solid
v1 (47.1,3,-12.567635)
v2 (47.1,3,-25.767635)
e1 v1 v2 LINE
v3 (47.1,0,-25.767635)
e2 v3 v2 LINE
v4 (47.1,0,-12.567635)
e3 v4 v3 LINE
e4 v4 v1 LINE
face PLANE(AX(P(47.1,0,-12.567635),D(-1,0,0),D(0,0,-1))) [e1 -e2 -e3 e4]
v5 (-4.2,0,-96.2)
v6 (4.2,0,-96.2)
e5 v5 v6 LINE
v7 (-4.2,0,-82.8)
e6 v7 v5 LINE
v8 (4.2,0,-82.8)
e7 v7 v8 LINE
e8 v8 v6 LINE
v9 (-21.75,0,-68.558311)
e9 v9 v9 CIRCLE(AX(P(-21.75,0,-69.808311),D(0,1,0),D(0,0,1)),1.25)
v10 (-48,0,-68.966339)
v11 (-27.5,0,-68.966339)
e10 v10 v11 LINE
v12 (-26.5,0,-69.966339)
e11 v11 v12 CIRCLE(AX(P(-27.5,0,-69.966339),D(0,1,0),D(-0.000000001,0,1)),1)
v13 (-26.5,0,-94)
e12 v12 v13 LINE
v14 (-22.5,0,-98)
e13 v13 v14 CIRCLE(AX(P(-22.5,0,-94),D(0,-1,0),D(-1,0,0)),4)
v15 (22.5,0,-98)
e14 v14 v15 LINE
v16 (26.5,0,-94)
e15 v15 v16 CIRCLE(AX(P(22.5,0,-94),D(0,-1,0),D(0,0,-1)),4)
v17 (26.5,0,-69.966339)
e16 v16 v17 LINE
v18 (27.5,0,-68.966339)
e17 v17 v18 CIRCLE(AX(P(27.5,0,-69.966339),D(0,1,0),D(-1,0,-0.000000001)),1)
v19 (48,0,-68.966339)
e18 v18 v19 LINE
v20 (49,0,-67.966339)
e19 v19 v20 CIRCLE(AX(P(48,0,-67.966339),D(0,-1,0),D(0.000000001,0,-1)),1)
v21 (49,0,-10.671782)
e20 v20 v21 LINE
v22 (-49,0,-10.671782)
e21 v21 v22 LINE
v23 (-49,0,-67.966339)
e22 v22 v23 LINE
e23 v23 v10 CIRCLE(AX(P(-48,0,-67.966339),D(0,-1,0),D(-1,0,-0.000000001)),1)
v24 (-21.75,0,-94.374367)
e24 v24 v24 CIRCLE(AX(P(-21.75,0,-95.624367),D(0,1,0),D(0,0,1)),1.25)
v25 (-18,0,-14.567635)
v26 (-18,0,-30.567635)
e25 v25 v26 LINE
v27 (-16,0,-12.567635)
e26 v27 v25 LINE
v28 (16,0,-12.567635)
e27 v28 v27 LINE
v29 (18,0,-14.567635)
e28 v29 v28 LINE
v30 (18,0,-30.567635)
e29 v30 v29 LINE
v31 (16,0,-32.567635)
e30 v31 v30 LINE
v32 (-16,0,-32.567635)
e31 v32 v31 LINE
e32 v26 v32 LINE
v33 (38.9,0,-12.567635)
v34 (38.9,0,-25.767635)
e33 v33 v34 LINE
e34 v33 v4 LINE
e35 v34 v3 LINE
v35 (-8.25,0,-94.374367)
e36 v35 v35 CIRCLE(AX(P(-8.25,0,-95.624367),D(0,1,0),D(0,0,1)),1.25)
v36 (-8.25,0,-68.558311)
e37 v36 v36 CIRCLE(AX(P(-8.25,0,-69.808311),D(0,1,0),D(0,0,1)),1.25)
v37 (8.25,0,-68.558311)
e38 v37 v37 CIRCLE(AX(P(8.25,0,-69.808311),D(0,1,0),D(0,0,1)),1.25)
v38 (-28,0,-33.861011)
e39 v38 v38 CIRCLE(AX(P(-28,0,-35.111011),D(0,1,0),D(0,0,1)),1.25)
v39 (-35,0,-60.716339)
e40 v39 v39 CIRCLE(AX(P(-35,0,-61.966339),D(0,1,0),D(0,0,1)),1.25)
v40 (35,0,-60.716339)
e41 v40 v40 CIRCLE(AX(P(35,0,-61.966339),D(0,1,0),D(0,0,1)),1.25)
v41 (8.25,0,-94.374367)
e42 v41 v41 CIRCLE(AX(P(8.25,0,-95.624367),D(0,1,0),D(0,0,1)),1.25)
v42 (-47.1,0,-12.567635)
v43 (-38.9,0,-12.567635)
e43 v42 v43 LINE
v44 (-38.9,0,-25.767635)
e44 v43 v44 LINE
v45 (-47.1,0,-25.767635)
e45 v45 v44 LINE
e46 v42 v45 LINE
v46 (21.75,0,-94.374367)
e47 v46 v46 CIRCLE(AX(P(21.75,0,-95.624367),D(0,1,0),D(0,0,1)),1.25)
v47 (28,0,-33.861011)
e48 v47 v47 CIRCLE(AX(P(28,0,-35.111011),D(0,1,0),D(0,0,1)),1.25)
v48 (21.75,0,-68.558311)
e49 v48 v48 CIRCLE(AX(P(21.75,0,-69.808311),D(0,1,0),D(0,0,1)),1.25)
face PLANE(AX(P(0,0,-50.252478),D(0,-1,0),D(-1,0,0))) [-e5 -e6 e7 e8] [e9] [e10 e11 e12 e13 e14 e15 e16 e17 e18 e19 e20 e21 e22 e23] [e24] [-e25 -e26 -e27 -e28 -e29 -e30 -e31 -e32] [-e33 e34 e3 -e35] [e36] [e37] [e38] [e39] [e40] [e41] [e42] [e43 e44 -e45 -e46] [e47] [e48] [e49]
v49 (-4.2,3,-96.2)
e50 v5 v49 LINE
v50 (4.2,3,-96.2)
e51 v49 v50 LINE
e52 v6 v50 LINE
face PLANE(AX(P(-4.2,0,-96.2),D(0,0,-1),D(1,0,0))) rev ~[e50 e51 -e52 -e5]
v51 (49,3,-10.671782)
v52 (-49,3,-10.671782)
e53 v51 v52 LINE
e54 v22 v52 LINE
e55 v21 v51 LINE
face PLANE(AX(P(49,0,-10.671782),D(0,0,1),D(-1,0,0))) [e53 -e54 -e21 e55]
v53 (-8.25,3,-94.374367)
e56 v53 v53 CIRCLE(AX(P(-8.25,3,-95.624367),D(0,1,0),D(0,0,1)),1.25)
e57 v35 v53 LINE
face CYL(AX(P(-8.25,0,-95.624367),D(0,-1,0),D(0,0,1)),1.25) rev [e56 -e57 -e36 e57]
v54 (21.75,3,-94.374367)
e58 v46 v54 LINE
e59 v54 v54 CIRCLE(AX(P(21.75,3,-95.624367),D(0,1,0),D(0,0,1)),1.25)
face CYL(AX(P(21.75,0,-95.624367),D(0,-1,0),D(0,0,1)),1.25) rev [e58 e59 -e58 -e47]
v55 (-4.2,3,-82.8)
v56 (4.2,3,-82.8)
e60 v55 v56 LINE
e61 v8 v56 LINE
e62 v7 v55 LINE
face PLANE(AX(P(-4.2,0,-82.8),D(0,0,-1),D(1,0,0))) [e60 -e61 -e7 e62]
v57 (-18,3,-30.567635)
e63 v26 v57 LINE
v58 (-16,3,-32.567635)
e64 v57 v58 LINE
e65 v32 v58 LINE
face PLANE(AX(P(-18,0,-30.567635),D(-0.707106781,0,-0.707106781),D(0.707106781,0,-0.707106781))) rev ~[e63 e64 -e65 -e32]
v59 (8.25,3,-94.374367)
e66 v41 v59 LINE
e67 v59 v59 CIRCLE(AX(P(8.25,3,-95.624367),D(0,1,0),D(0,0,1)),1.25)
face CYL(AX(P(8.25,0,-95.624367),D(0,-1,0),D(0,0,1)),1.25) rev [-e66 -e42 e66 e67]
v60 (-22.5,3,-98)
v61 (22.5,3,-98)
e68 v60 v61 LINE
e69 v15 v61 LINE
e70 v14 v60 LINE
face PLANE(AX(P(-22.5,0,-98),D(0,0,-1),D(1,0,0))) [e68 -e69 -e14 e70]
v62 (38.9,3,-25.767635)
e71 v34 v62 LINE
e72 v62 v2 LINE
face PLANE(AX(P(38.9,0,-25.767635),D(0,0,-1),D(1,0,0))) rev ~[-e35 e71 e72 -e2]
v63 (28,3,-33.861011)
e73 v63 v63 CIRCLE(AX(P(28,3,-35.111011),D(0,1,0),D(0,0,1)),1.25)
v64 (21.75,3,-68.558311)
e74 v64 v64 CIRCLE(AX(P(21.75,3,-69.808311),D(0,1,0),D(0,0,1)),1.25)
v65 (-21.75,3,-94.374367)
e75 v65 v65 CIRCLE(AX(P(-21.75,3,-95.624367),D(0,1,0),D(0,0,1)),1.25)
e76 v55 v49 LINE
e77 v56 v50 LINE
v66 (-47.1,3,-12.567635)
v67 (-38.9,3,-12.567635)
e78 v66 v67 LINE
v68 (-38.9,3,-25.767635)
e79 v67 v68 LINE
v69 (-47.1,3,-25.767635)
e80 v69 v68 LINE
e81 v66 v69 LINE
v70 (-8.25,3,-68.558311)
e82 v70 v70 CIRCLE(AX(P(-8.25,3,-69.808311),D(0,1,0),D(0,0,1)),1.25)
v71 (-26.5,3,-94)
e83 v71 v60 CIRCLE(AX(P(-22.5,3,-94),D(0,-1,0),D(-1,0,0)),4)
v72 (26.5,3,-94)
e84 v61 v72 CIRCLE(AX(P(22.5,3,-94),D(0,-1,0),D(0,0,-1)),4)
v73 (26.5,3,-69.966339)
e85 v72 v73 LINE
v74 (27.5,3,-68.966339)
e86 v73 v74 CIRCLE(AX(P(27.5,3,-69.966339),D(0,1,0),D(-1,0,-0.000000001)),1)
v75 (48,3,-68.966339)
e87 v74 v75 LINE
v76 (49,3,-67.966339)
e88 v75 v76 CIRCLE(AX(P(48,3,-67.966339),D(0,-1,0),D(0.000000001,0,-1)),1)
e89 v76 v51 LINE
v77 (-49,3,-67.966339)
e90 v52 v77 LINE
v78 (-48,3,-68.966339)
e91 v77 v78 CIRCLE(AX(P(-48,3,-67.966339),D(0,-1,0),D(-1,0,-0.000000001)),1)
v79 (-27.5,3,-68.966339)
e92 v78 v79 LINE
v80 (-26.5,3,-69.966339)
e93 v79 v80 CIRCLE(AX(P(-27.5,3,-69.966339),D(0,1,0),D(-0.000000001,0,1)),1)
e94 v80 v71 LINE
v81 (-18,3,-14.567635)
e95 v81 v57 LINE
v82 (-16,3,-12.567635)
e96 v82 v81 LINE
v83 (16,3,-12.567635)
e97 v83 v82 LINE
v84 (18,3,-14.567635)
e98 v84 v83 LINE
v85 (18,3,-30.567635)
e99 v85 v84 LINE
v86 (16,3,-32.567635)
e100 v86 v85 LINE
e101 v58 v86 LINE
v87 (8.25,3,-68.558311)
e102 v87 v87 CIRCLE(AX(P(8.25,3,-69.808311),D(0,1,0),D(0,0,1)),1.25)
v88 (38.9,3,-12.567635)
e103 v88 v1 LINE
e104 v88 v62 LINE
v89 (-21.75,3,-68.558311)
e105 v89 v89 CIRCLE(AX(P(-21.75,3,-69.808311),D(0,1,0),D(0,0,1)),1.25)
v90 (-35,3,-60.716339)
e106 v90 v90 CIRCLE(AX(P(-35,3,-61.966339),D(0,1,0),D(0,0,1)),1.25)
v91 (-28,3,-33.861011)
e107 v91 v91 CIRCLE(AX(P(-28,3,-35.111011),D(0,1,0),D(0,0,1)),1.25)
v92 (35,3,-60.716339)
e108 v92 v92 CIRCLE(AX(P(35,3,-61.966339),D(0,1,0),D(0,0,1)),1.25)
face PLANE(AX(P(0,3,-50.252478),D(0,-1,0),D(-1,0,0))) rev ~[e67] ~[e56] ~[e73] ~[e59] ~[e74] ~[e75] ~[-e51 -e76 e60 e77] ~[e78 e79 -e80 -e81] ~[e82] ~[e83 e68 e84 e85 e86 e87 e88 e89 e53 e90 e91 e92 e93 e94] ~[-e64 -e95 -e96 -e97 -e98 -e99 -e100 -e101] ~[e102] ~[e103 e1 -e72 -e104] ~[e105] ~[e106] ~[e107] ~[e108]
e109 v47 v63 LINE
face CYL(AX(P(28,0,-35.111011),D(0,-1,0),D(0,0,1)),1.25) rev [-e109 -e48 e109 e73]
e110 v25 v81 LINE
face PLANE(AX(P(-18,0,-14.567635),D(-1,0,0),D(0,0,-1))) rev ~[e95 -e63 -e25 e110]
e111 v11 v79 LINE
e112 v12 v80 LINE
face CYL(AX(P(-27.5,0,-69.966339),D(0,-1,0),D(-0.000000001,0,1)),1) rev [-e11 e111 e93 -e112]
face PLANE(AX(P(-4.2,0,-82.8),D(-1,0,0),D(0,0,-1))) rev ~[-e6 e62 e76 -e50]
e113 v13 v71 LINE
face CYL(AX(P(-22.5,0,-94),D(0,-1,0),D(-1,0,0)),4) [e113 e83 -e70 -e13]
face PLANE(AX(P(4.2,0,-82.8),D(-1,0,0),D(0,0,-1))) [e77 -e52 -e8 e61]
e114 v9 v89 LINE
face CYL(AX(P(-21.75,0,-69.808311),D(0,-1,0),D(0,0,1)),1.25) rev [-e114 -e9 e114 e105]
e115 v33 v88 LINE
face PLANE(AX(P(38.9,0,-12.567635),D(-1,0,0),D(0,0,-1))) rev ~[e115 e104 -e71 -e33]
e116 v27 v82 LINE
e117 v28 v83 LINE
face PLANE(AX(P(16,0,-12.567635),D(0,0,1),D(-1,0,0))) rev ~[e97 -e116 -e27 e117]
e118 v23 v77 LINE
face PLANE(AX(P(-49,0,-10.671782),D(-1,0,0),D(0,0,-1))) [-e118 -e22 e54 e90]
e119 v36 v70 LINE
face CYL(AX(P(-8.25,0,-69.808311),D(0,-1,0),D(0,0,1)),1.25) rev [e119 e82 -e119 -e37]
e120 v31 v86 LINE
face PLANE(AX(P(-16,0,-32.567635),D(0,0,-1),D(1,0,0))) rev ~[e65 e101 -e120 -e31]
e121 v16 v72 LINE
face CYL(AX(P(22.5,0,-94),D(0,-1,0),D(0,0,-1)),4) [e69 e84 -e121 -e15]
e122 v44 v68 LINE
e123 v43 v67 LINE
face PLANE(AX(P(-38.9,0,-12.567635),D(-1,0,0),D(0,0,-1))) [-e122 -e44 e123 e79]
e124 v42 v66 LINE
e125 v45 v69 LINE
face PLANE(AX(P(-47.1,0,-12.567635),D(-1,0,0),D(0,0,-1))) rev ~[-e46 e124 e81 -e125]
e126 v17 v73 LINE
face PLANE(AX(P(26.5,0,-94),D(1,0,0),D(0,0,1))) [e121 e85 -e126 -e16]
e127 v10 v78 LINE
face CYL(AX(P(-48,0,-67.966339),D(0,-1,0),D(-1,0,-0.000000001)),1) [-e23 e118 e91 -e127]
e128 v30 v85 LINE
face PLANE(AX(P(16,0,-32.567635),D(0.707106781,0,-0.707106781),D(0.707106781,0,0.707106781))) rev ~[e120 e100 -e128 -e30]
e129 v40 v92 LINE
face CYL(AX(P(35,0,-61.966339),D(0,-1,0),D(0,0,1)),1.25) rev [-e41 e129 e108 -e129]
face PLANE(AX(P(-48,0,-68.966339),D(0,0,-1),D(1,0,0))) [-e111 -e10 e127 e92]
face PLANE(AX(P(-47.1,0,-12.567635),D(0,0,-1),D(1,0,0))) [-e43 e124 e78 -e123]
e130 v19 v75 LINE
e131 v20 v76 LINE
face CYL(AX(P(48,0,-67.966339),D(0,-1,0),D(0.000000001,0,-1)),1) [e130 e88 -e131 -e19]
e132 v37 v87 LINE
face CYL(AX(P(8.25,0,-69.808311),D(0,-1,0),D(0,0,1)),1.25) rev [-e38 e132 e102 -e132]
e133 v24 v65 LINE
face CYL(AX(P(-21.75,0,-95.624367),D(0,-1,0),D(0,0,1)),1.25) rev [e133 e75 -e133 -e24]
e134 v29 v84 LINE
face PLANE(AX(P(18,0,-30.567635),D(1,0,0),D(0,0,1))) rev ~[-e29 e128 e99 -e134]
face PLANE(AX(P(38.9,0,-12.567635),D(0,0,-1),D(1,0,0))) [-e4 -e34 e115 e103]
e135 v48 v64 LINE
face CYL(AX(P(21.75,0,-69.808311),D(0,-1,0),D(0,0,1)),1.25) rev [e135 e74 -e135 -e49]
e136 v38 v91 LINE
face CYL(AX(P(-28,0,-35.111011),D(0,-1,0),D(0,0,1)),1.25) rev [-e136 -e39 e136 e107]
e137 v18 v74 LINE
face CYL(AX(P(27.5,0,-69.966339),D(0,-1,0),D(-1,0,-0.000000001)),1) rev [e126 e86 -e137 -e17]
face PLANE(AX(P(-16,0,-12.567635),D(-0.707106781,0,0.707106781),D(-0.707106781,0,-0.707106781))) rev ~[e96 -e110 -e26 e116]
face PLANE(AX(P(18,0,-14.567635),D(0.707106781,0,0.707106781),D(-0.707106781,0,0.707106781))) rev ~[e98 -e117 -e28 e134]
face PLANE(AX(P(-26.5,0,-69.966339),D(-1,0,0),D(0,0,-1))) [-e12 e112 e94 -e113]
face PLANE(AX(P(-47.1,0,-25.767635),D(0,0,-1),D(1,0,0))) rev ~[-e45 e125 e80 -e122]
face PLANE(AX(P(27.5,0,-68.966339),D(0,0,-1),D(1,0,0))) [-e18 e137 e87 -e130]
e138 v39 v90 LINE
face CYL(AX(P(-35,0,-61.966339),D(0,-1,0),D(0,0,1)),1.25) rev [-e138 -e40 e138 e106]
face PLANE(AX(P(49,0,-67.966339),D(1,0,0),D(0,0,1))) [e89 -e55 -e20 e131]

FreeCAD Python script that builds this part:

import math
import FreeCAD as App
import Part
import Sketcher
Q = App.Units.Quantity

doc = App.newDocument("Part")
body = doc.addObject("PartDesign::Body", "Body")

# Sketch on XZ plane
sketch1 = doc.addObject("Sketcher::SketchObject", "Sketch")
body.addObject(sketch1)
sketch1.AttachmentSupport = (doc.XZ_Plane, [""])
sketch1.MapMode = "FlatFace"
sketch1.addGeometry([
    Part.LineSegment(App.Vector(-49, -68, 0), App.Vector(-49, -10.7, 0)),  # 0
    Part.LineSegment(App.Vector(-49, -10.7, 0), App.Vector(49, -10.7, 0)),  # 1
    Part.LineSegment(App.Vector(49, -10.7, 0), App.Vector(49, -68, 0)),  # 2
    Part.ArcOfCircle(Part.Circle(App.Vector(48, -68, 0), App.Vector(0, 0, 1), 1), math.radians(-90), math.radians(0)),  # 3
    Part.LineSegment(App.Vector(48, -69, 0), App.Vector(27.5, -69, 0)),  # 4
    Part.ArcOfCircle(Part.Circle(App.Vector(27.5, -70, 0), App.Vector(0, 0, 1), 1), math.radians(90), math.radians(180)),  # 5
    Part.LineSegment(App.Vector(26.5, -70, 0), App.Vector(26.5, -94, 0)),  # 6
    Part.ArcOfCircle(Part.Circle(App.Vector(22.5, -94, 0), App.Vector(0, 0, 1), 4), math.radians(-90), math.radians(0)),  # 7
    Part.LineSegment(App.Vector(22.5, -98, 0), App.Vector(-22.5, -98, 0)),  # 8
    Part.ArcOfCircle(Part.Circle(App.Vector(-22.5, -94, 0), App.Vector(0, 0, 1), 4), math.radians(180), math.radians(270)),  # 9
    Part.LineSegment(App.Vector(-26.5, -94, 0), App.Vector(-26.5, -70, 0)),  # 10
    Part.ArcOfCircle(Part.Circle(App.Vector(-27.5, -70, 0), App.Vector(0, 0, 1), 1), math.radians(0), math.radians(90)),  # 11
    Part.LineSegment(App.Vector(-27.5, -69, 0), App.Vector(-48, -69, 0)),  # 12
    Part.ArcOfCircle(Part.Circle(App.Vector(-48, -68, 0), App.Vector(0, 0, 1), 1), math.radians(-180), math.radians(-90)),  # 13
    Part.LineSegment(App.Vector(38.9, -12.6, 0), App.Vector(38.9, -25.8, 0)),  # 14
    Part.LineSegment(App.Vector(38.9, -25.8, 0), App.Vector(47.1, -25.8, 0)),  # 15
    Part.LineSegment(App.Vector(47.1, -25.8, 0), App.Vector(47.1, -12.6, 0)),  # 16
    Part.LineSegment(App.Vector(47.1, -12.6, 0), App.Vector(38.9, -12.6, 0)),  # 17
    Part.Circle(App.Vector(28, -35.1, 0), App.Vector(0, 0, 1), 1.2),  # 18
    Part.LineSegment(App.Vector(16, -12.6, 0), App.Vector(-16, -12.6, 0)),  # 19
    Part.LineSegment(App.Vector(-16, -12.6, 0), App.Vector(-18, -14.6, 0)),  # 20
    Part.LineSegment(App.Vector(-18, -14.6, 0), App.Vector(-18, -30.6, 0)),  # 21
    Part.LineSegment(App.Vector(-18, -30.6, 0), App.Vector(-16, -32.6, 0)),  # 22
    Part.LineSegment(App.Vector(-16, -32.6, 0), App.Vector(16, -32.6, 0)),  # 23
    Part.LineSegment(App.Vector(16, -32.6, 0), App.Vector(18, -30.6, 0)),  # 24
    Part.LineSegment(App.Vector(18, -30.6, 0), App.Vector(18, -14.6, 0)),  # 25
    Part.LineSegment(App.Vector(18, -14.6, 0), App.Vector(16, -12.6, 0)),  # 26
    Part.LineSegment(App.Vector(-47.1, -12.6, 0), App.Vector(-47.1, -25.8, 0)),  # 27
    Part.LineSegment(App.Vector(-47.1, -25.8, 0), App.Vector(-38.9, -25.8, 0)),  # 28
    Part.LineSegment(App.Vector(-38.9, -25.8, 0), App.Vector(-38.9, -12.6, 0)),  # 29
    Part.LineSegment(App.Vector(-38.9, -12.6, 0), App.Vector(-47.1, -12.6, 0)),  # 30
    Part.Circle(App.Vector(-28, -35.1, 0), App.Vector(0, 0, 1), 1.2),  # 31
    Part.Circle(App.Vector(35, -62, 0), App.Vector(0, 0, 1), 1.2),  # 32
    Part.Circle(App.Vector(21.8, -69.8, 0), App.Vector(0, 0, 1), 1.2),  # 33
    Part.Circle(App.Vector(8.2, -69.8, 0), App.Vector(0, 0, 1), 1.2),  # 34
    Part.Circle(App.Vector(21.8, -95.6, 0), App.Vector(0, 0, 1), 1.2),  # 35
    Part.Circle(App.Vector(8.2, -95.6, 0), App.Vector(0, 0, 1), 1.2),  # 36
    Part.Circle(App.Vector(-8.2, -69.8, 0), App.Vector(0, 0, 1), 1.2),  # 37
    Part.Circle(App.Vector(-21.8, -69.8, 0), App.Vector(0, 0, 1), 1.2),  # 38
    Part.Circle(App.Vector(-35, -62, 0), App.Vector(0, 0, 1), 1.2),  # 39
    Part.LineSegment(App.Vector(-4.2, -82.8, 0), App.Vector(-4.2, -96.2, 0)),  # 40
    Part.LineSegment(App.Vector(-4.2, -96.2, 0), App.Vector(4.2, -96.2, 0)),  # 41
    Part.LineSegment(App.Vector(4.2, -96.2, 0), App.Vector(4.2, -82.8, 0)),  # 42
    Part.LineSegment(App.Vector(4.2, -82.8, 0), App.Vector(-4.2, -82.8, 0)),  # 43
    Part.Circle(App.Vector(-8.2, -95.6, 0), App.Vector(0, 0, 1), 1.2),  # 44
    Part.Circle(App.Vector(-21.8, -95.6, 0), App.Vector(0, 0, 1), 1.2),  # 45
], False)
sketch1.addConstraint([
    Sketcher.Constraint("Coincident", 0, 2, 1, 1),
    Sketcher.Constraint("Coincident", 1, 2, 2, 1),
    Sketcher.Constraint("Tangent", 2, 2, 3, 2),
    Sketcher.Constraint("Tangent", 3, 1, 4, 1),
    Sketcher.Constraint("Tangent", 4, 2, 5, 1),
    Sketcher.Constraint("Tangent", 5, 2, 6, 1),
    Sketcher.Constraint("Tangent", 6, 2, 7, 2),
    Sketcher.Constraint("Tangent", 7, 1, 8, 1),
    Sketcher.Constraint("Tangent", 8, 2, 9, 2),
    Sketcher.Constraint("Tangent", 9, 1, 10, 1),
    Sketcher.Constraint("Tangent", 10, 2, 11, 1),
    Sketcher.Constraint("Tangent", 11, 2, 12, 1),
    Sketcher.Constraint("Tangent", 12, 2, 13, 2),
    Sketcher.Constraint("Tangent", 13, 1, 0, 1),
    Sketcher.Constraint("Coincident", 14, 2, 15, 1),
    Sketcher.Constraint("Coincident", 15, 2, 16, 1),
    Sketcher.Constraint("Coincident", 16, 2, 17, 1),
    Sketcher.Constraint("Coincident", 17, 2, 14, 1),
    Sketcher.Constraint("Coincident", 19, 2, 20, 1),
    Sketcher.Constraint("Coincident", 20, 2, 21, 1),
    Sketcher.Constraint("Coincident", 21, 2, 22, 1),
    Sketcher.Constraint("Coincident", 22, 2, 23, 1),
    Sketcher.Constraint("Coincident", 23, 2, 24, 1),
    Sketcher.Constraint("Coincident", 24, 2, 25, 1),
    Sketcher.Constraint("Coincident", 25, 2, 26, 1),
    Sketcher.Constraint("Coincident", 26, 2, 19, 1),
    Sketcher.Constraint("Coincident", 27, 2, 28, 1),
    Sketcher.Constraint("Coincident", 28, 2, 29, 1),
    Sketcher.Constraint("Coincident", 29, 2, 30, 1),
    Sketcher.Constraint("Coincident", 30, 2, 27, 1),
    Sketcher.Constraint("Coincident", 40, 2, 41, 1),
    Sketcher.Constraint("Coincident", 41, 2, 42, 1),
    Sketcher.Constraint("Coincident", 42, 2, 43, 1),
    Sketcher.Constraint("Coincident", 43, 2, 40, 1),
    Sketcher.Constraint("Vertical", 0),
    Sketcher.Constraint("Horizontal", 1),
    Sketcher.Constraint("Vertical", 2),
    Sketcher.Constraint("Horizontal", 4),
    Sketcher.Constraint("Vertical", 6),
    Sketcher.Constraint("Horizontal", 8),
    Sketcher.Constraint("Vertical", 10),
    Sketcher.Constraint("Horizontal", 12),
    Sketcher.Constraint("Vertical", 14),
    Sketcher.Constraint("Horizontal", 15),
    Sketcher.Constraint("Vertical", 16),
    Sketcher.Constraint("Horizontal", 17),
    Sketcher.Constraint("Horizontal", 19),
    Sketcher.Constraint("Vertical", 21),
    Sketcher.Constraint("Horizontal", 23),
    Sketcher.Constraint("Vertical", 25),
    Sketcher.Constraint("Vertical", 27),
    Sketcher.Constraint("Horizontal", 28),
    Sketcher.Constraint("Vertical", 29),
    Sketcher.Constraint("Horizontal", 30),
    Sketcher.Constraint("Vertical", 40),
    Sketcher.Constraint("Horizontal", 41),
    Sketcher.Constraint("Vertical", 42),
    Sketcher.Constraint("Horizontal", 43),
    Sketcher.Constraint("Equal", 3, 5),
    Sketcher.Constraint("Equal", 7, 9),
    Sketcher.Constraint("Equal", 5, 11),
    Sketcher.Constraint("Equal", 11, 13),
    Sketcher.Constraint("Equal", 18, 31),
    Sketcher.Constraint("Equal", 31, 32),
    Sketcher.Constraint("Equal", 32, 33),
    Sketcher.Constraint("Equal", 33, 34),
    Sketcher.Constraint("Equal", 34, 35),
    Sketcher.Constraint("Equal", 35, 36),
    Sketcher.Constraint("Equal", 36, 37),
    Sketcher.Constraint("Equal", 37, 38),
    Sketcher.Constraint("Equal", 38, 39),
    Sketcher.Constraint("Equal", 39, 44),
    Sketcher.Constraint("Equal", 44, 45),
    Sketcher.Constraint("Symmetric", 5, 3, 11, 3, -2),
    Sketcher.Constraint("Symmetric", 18, 3, 31, 3, -2),
    Sketcher.Constraint("Symmetric", 34, 3, 37, 3, -2),
    Sketcher.Constraint("Symmetric", 33, 3, 38, 3, -2),
    Sketcher.Constraint("Symmetric", 32, 3, 39, 3, -2),
    Sketcher.Constraint("Symmetric", 36, 3, 44, 3, -2),
    Sketcher.Constraint("Symmetric", 35, 3, 45, 3, -2),
    Sketcher.Constraint("Symmetric", 21, 2, 24, 2, -2),
    Sketcher.Constraint("Symmetric", 15, 2, 27, 2, -2),
    Sketcher.Constraint("Symmetric", 17, 2, 29, 2, -2),
    Sketcher.Constraint("Perpendicular", 20, 22),
    Sketcher.Constraint("Perpendicular", 22, 24),
    Sketcher.Constraint("Perpendicular", 24, 26),
    Sketcher.Constraint("Horizontal", 33, 3, 34, 3),
    Sketcher.Constraint("Horizontal", 35, 3, 36, 3),
    Sketcher.Constraint("Horizontal", 17, 2, 19, 2),
    Sketcher.Constraint("Horizontal", 20, 2, 25, 2),
    Sketcher.Constraint("Vertical", 33, 3, 35, 3),
    Sketcher.Constraint("Vertical", 34, 3, 36, 3),
    Sketcher.Constraint("Vertical", 19, 2, 22, 2),
    Sketcher.Constraint("Vertical", 23, 2, 26, 2),
    Sketcher.Constraint("Equal", 4, 12),
    Sketcher.Constraint("Radius", 3, Q("1 mm")),
    Sketcher.Constraint("Radius", 7, Q("4 mm")),
    Sketcher.Constraint("Diameter", 18, Q("2.5 mm")),
    Sketcher.Constraint("DistanceX", 1, 1, 1, 2, Q("98 mm")),
    Sketcher.Constraint("DistanceX", 8, 2, 8, 1, Q("45 mm")),
    Sketcher.Constraint("DistanceX", 19, 2, 19, 1, Q("32 mm")),
    Sketcher.Constraint("DistanceY", 21, 2, 21, 1, Q("16 mm")),
    Sketcher.Constraint("DistanceX", 15, 1, 15, 2, Q("8.2 mm")),
    Sketcher.Constraint("DistanceX", 41, 1, 41, 2, Q("8.4 mm")),
    Sketcher.Constraint("DistanceY", 14, 2, 14, 1, Q("13.2 mm")),
    Sketcher.Constraint("DistanceY", 40, 2, 40, 1, Q("13.4 mm")),
    Sketcher.Constraint("DistanceY", 7, 3, -1, 1, Q("94 mm")),
    Sketcher.Constraint("DistanceX", -1, 1, 18, 3, Q("28 mm")),
    Sketcher.Constraint("DistanceX", -1, 1, 32, 3, Q("35 mm")),
    Sketcher.Constraint("DistanceX", 20, 2, -1, 1, Q("18 mm")),
    Sketcher.Constraint("DistanceY", 5, 3, 32, 3, Q("8 mm")),
    Sketcher.Constraint("DistanceX", 37, 3, 33, 3, Q("30 mm")),
    Sketcher.Constraint("DistanceX", -1, 1, 14, 2, Q("38.9 mm")),
    Sketcher.Constraint("DistanceX", 40, 2, -1, 1, Q("4.2 mm")),
    Sketcher.Constraint("DistanceY", 40, 2, -1, 1, Q("96.2 mm")),
    Sketcher.Constraint("DistanceX", 34, 3, 33, 3, Q("13.5 mm")),
    Sketcher.Constraint("DistanceY", 6, 2, 6, 1, Q("24.033661 mm")),
    Sketcher.Constraint("DistanceY", 33, 3, 18, 3, Q("34.6973 mm")),
    Sketcher.Constraint("DistanceY", 0, 1, 0, 2, Q("57.294558 mm")),
    Sketcher.Constraint("DistanceY", 18, 3, -1, 1, Q("35.111011 mm")),
    Sketcher.Constraint("DistanceY", 35, 3, 5, 3, Q("25.658028 mm")),
    Sketcher.Constraint("DistanceY", 14, 2, -1, 1, Q("25.767635 mm")),
])
pad1 = doc.addObject("PartDesign::Pad", "Pad")
body.addObject(pad1)
pad1.Profile = sketch1
pad1.Length = 3
pad1.Reversed = True

doc.recompute()
